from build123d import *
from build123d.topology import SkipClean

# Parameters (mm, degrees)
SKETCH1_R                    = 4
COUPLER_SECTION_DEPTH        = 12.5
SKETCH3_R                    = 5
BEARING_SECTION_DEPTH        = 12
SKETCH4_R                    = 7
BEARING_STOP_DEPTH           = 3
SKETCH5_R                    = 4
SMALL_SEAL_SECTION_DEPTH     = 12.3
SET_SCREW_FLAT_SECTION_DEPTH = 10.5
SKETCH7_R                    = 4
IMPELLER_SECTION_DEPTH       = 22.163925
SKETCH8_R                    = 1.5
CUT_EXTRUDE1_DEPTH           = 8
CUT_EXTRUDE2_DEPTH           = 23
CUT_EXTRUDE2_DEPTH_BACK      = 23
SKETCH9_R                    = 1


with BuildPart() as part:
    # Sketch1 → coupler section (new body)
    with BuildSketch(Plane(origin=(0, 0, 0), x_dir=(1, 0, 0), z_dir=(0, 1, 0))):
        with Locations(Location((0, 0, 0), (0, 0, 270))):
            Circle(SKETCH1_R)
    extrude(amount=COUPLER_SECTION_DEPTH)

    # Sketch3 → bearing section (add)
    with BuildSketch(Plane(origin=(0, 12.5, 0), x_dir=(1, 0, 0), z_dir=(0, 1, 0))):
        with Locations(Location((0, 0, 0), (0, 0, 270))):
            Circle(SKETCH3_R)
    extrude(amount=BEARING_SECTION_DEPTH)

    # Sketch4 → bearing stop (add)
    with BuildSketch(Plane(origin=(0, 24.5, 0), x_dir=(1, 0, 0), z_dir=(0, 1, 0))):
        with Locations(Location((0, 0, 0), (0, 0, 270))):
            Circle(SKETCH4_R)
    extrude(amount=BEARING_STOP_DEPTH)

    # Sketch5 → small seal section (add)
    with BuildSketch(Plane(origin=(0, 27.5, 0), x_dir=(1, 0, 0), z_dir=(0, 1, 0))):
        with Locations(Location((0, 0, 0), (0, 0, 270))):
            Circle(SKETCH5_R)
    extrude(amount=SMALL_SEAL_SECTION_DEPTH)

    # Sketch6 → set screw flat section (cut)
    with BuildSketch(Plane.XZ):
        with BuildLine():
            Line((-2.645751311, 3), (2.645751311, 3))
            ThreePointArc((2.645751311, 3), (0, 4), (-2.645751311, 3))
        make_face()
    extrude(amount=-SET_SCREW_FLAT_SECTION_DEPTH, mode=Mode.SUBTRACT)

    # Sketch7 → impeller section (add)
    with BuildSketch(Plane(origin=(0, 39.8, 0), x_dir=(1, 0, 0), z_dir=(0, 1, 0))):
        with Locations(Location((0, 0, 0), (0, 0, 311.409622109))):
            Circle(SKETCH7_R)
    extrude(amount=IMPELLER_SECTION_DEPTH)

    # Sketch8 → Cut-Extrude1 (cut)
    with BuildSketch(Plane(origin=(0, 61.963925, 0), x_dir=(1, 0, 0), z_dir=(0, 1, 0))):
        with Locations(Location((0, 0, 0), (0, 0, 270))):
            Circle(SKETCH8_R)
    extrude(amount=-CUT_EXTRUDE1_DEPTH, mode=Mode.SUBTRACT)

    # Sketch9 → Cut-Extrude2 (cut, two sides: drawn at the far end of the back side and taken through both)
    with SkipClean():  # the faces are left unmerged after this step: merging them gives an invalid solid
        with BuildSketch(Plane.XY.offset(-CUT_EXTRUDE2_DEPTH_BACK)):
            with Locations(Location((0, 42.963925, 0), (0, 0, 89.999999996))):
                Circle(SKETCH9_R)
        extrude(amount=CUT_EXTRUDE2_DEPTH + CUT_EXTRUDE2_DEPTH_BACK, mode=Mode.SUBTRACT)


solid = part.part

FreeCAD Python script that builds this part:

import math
import FreeCAD as App
import Part
import Sketcher

V = App.Vector
Q = App.Units.Quantity

doc = App.newDocument("Part")
params = doc.addObject("Spreadsheet::Sheet", "Params")
for row, (alias, value) in enumerate([
    ("sketch1_diameter", "8 mm"),
    ("pad1_length", "12.5 mm"),
    ("sketch2_diameter", "10 mm"),
    ("pad2_length", "12 mm"),
    ("sketch3_diameter", "14 mm"),
    ("pad3_length", "3 mm"),
    ("sketch4_diameter", "8 mm"),
    ("pad4_length", "12.3 mm"),
    ("sketch5_radius", "4 mm"),
    ("pocket1_length", "10.5 mm"),
    ("sketch6_diameter", "8 mm"),
    ("pad5_length", "22.163925 mm"),
    ("sketch7_diameter", "3 mm"),
    ("pocket2_length", "8 mm"),
    ("sketch8_diameter", "2 mm"),
], start=1):
    params.set(f"A{row}", alias)
    params.set(f"B{row}", "=" + value)
    params.setAlias(f"B{row}", alias)

body = doc.addObject("PartDesign::Body", "Body")

# Sketch on XZ plane
sketch1 = body.newObject("Sketcher::SketchObject", "Sketch")
sketch1.AttachmentSupport = (doc.getObject("XZ_Plane"), [""])
sketch1.MapMode = "FlatFace"
sketch1.addGeometry(Part.Circle(V(0, 0, 0), V(0, 0, 1), 4), False)
sketch1.addConstraint([
    Sketcher.Constraint("Coincident", 0, 3, -1, 1),
    Sketcher.Constraint("Diameter", 0, Q("8 mm")),
])
sketch1.setExpression("Constraints[1]", "Params.sketch1_diameter")
pad1 = body.newObject("PartDesign::Pad", "Pad")
pad1.Profile = sketch1
pad1.setExpression("Length", "Params.pad1_length")
pad1.Reversed = True

# Sketch on XZ plane
sketch2 = body.newObject("Sketcher::SketchObject", "Sketch001")
sketch2.AttachmentSupport = (doc.getObject("XZ_Plane"), [""])
sketch2.MapMode = "FlatFace"
sketch2.AttachmentOffset = App.Placement(V(0, 0, -12.5), App.Rotation())
sketch2.addGeometry(Part.Circle(V(0, 0, 0), V(0, 0, 1), 5), False)
sketch2.addConstraint([
    Sketcher.Constraint("Coincident", 0, 3, -1, 1),
    Sketcher.Constraint("Diameter", 0, Q("10 mm")),
])
sketch2.setExpression("Constraints[1]", "Params.sketch2_diameter")
pad2 = body.newObject("PartDesign::Pad", "Pad001")
pad2.Profile = sketch2
pad2.setExpression("Length", "Params.pad2_length")
pad2.Reversed = True

# Sketch on XZ plane
sketch3 = body.newObject("Sketcher::SketchObject", "Sketch002")
sketch3.AttachmentSupport = (doc.getObject("XZ_Plane"), [""])
sketch3.MapMode = "FlatFace"
sketch3.AttachmentOffset = App.Placement(V(0, 0, -24.5), App.Rotation())
sketch3.addGeometry(Part.Circle(V(0, 0, 0), V(0, 0, 1), 7), False)
sketch3.addConstraint([
    Sketcher.Constraint("Coincident", 0, 3, -1, 1),
    Sketcher.Constraint("Diameter", 0, Q("14 mm")),
])
sketch3.setExpression("Constraints[1]", "Params.sketch3_diameter")
pad3 = body.newObject("PartDesign::Pad", "Pad002")
pad3.Profile = sketch3
pad3.setExpression("Length", "Params.pad3_length")
pad3.Reversed = True

# Sketch on XZ plane
sketch4 = body.newObject("Sketcher::SketchObject", "Sketch003")
sketch4.AttachmentSupport = (doc.getObject("XZ_Plane"), [""])
sketch4.MapMode = "FlatFace"
sketch4.AttachmentOffset = App.Placement(V(0, 0, -27.5), App.Rotation())
sketch4.addGeometry(Part.Circle(V(0, 0, 0), V(0, 0, 1), 4), False)
sketch4.addConstraint([
    Sketcher.Constraint("Coincident", 0, 3, -1, 1),
    Sketcher.Constraint("Diameter", 0, Q("8 mm")),
])
sketch4.setExpression("Constraints[1]", "Params.sketch4_diameter")
pad4 = body.newObject("PartDesign::Pad", "Pad003")
pad4.Profile = sketch4
pad4.setExpression("Length", "Params.pad4_length")
pad4.Reversed = True

# Sketch on XZ plane
sketch5 = body.newObject("Sketcher::SketchObject", "Sketch004")
sketch5.AttachmentSupport = (doc.getObject("XZ_Plane"), [""])
sketch5.MapMode = "FlatFace"
sketch5.addGeometry([
    Part.LineSegment(V(-2.645751, 3, 0), V(2.645751, 3, 0)),
    Part.ArcOfCircle(Part.Circle(V(0, 0, 0), V(0, 0, 1), 4), math.radians(48.590378), math.radians(131.409622)),
], False)
sketch5.addConstraint([
    Sketcher.Constraint("Coincident", 0, 1, 1, 2),
    Sketcher.Constraint("Coincident", 1, 1, 0, 2),
    Sketcher.Constraint("Horizontal", 0),
    Sketcher.Constraint("Coincident", 1, 3, -1, 1),
    Sketcher.Constraint("Radius", 1, Q("4 mm")),
    Sketcher.Constraint("DistanceY", -1, 1, 0, 1, Q("3 mm")),
])
sketch5.setExpression("Constraints[4]", "Params.sketch5_radius")
pocket1 = body.newObject("PartDesign::Pocket", "Pocket")
pocket1.Profile = sketch5
pocket1.setExpression("Length", "Params.pocket1_length")

# Sketch on XZ plane
sketch6 = body.newObject("Sketcher::SketchObject", "Sketch005")
sketch6.AttachmentSupport = (doc.getObject("XZ_Plane"), [""])
sketch6.MapMode = "FlatFace"
sketch6.AttachmentOffset = App.Placement(V(0, 0, -39.8), App.Rotation())
sketch6.addGeometry(Part.Circle(V(0, 0, 0), V(0, 0, 1), 4), False)
sketch6.addConstraint([
    Sketcher.Constraint("Coincident", 0, 3, -1, 1),
    Sketcher.Constraint("Diameter", 0, Q("8 mm")),
])
sketch6.setExpression("Constraints[1]", "Params.sketch6_diameter")
pad5 = body.newObject("PartDesign::Pad", "Pad004")
pad5.Profile = sketch6
pad5.setExpression("Length", "Params.pad5_length")
pad5.Reversed = True

# Sketch on XZ plane
sketch7 = body.newObject("Sketcher::SketchObject", "Sketch006")
sketch7.AttachmentSupport = (doc.getObject("XZ_Plane"), [""])
sketch7.MapMode = "FlatFace"
sketch7.AttachmentOffset = App.Placement(V(0, 0, -61.963925), App.Rotation())
sketch7.addGeometry(Part.Circle(V(0, 0, 0), V(0, 0, 1), 1.5), False)
sketch7.addConstraint([
    Sketcher.Constraint("Coincident", 0, 3, -1, 1),
    Sketcher.Constraint("Diameter", 0, Q("3 mm")),
])
sketch7.setExpression("Constraints[1]", "Params.sketch7_diameter")
pocket2 = body.newObject("PartDesign::Pocket", "Pocket001")
pocket2.Profile = sketch7
pocket2.setExpression("Length", "Params.pocket2_length")
pocket2.Reversed = True

# Sketch on XY plane
sketch8 = body.newObject("Sketcher::SketchObject", "Sketch007")
sketch8.AttachmentSupport = (doc.getObject("XY_Plane"), [""])
sketch8.MapMode = "FlatFace"
sketch8.addGeometry(Part.Circle(V(0, 42.963925, 0), V(0, 0, 1), 1), False)
sketch8.addConstraint([
    Sketcher.Constraint("PointOnObject", 0, 3, -2),
    Sketcher.Constraint("Diameter", 0, Q("2 mm")),
    Sketcher.Constraint("DistanceY", -1, 1, 0, 3, Q("42.963925 mm")),
])
sketch8.setExpression("Constraints[1]", "Params.sketch8_diameter")
pocket3 = body.newObject("PartDesign::Pocket", "Pocket002")
pocket3.Profile = sketch8
pocket3.Type = "ThroughAll"
pocket3.Midplane = True

doc.recompute()
